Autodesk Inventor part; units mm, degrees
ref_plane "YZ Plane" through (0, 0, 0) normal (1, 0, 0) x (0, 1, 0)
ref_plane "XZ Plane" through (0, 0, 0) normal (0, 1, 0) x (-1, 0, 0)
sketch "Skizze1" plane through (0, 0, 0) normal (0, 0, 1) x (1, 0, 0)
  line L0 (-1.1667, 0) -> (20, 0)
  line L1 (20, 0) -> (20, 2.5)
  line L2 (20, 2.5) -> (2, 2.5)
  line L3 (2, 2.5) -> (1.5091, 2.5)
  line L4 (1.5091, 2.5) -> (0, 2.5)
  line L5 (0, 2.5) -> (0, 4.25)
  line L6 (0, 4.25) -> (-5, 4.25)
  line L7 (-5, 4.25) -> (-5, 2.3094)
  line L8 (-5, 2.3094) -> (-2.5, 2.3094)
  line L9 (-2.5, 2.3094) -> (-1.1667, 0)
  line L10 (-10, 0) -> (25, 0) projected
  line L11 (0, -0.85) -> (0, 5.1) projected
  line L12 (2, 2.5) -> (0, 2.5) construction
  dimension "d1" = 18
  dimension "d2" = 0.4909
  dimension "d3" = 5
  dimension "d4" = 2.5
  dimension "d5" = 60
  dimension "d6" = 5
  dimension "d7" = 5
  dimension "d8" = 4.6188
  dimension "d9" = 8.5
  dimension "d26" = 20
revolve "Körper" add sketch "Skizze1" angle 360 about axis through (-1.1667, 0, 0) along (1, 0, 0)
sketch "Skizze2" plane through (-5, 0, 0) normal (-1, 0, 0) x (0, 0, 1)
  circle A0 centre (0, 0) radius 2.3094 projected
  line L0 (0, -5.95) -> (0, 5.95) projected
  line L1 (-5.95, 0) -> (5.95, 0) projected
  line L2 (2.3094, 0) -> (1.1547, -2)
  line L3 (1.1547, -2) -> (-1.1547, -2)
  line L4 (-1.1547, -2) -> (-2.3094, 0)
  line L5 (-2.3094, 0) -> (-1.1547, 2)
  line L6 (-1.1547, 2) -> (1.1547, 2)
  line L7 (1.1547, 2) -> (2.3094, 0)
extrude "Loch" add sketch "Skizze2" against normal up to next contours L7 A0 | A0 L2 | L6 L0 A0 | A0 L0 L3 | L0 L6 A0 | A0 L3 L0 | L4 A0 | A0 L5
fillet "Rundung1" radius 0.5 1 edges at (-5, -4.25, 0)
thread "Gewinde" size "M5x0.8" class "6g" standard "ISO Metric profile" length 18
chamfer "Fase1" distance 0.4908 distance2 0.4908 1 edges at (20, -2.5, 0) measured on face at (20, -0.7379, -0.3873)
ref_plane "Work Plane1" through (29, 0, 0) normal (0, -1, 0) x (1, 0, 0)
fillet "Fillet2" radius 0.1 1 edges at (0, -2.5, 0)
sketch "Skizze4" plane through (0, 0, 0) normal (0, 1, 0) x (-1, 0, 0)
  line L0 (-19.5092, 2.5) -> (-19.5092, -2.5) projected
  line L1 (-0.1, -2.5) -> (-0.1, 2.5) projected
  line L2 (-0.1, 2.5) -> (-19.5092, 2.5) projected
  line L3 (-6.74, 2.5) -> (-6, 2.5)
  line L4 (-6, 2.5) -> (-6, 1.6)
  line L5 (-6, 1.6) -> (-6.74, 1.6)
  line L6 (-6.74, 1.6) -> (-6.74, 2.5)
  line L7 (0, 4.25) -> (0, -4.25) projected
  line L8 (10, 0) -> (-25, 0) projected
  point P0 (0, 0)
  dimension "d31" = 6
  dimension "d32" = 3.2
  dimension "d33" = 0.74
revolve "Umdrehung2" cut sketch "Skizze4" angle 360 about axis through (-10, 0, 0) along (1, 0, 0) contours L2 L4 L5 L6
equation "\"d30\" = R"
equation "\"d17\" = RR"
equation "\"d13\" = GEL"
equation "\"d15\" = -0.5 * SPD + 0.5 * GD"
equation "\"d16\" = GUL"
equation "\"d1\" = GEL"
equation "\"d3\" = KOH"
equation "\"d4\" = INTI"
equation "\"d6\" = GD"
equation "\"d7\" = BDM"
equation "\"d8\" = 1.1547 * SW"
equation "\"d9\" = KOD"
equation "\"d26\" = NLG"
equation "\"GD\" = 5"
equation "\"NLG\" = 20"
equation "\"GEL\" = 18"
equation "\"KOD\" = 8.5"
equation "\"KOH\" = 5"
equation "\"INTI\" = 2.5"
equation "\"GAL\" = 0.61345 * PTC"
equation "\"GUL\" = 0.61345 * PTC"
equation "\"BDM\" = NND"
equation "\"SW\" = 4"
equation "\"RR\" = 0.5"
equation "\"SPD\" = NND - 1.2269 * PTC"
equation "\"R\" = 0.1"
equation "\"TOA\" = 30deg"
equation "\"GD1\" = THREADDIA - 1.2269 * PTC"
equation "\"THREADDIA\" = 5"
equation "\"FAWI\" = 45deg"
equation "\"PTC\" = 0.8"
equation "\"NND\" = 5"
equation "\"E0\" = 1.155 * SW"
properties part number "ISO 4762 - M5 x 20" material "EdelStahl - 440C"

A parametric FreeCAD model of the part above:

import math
import FreeCAD as App
import Part
import Sketcher
from FreeCAD import Vector
Q = App.Units.Quantity


def edges_at(feature, points):
    """Names of the edges that pass closest to the given points."""
    edges = feature.Shape.Edges
    near = lambda p: min(range(len(edges)), key=lambda i: edges[i].distToShape(Part.Vertex(*p))[0])
    return sorted({f"Edge{near(p) + 1}" for p in points})

doc = App.newDocument("Part")
params = doc.addObject("Spreadsheet::Sheet", "Params")
for row, (alias, value) in enumerate([
    ("sketch1_width", "20 mm"),
    ("sketch1_width2", "5 mm"),
    ("sketch1_width3", "2.5 mm"),
    ("sketch1_height", "1.75 mm"),
    ("revolution_angle", "360 deg"),
    ("pad1_length", "2.6786 mm"),
    ("fillet_radius", "0.5 mm"),
    ("chamfer_size", "0.4908 mm"),
    ("chamfer_size2", "0.4908 mm"),
    ("fillet2_radius", "0.1 mm"),
    ("sketch3_width", "0.74 mm"),
    ("sketch3_height", "0.9 mm"),
    ("groove_angle", "360 deg"),
], start=1):
    params.set(f"A{row}", alias)
    params.set(f"B{row}", "=" + value)
    params.setAlias(f"B{row}", alias)

body = doc.addObject("PartDesign::Body", "Body")

# Sketch on XY plane
sketch1 = body.newObject("Sketcher::SketchObject", "Sketch")
sketch1.AttachmentSupport = (doc.getObject("XY_Plane"), [""])
sketch1.MapMode = "FlatFace"
sketch1.addGeometry(Part.LineSegment(Vector(-2.5, 2.3094, 0), Vector(-1.1667, 0, 0)), False)
sketch1.addGeometry(Part.LineSegment(Vector(-1.1667, 0, 0), Vector(20, 0, 0)), False)
sketch1.addGeometry(Part.LineSegment(Vector(20, 0, 0), Vector(20, 2.5, 0)), False)
sketch1.addGeometry(Part.LineSegment(Vector(20, 2.5, 0), Vector(0, 2.5, 0)), False)
sketch1.addGeometry(Part.LineSegment(Vector(0, 2.5, 0), Vector(0, 4.25, 0)), False)
sketch1.addGeometry(Part.LineSegment(Vector(0, 4.25, 0), Vector(-5, 4.25, 0)), False)
sketch1.addGeometry(Part.LineSegment(Vector(-5, 4.25, 0), Vector(-5, 2.3094, 0)), False)
sketch1.addGeometry(Part.LineSegment(Vector(-5, 2.3094, 0), Vector(-2.5, 2.3094, 0)), False)
sketch1.addConstraint(Sketcher.Constraint("Coincident", 0, 2, 1, 1))
sketch1.addConstraint(Sketcher.Constraint("Coincident", 1, 2, 2, 1))
sketch1.addConstraint(Sketcher.Constraint("Coincident", 2, 2, 3, 1))
sketch1.addConstraint(Sketcher.Constraint("Coincident", 3, 2, 4, 1))
sketch1.addConstraint(Sketcher.Constraint("Coincident", 4, 2, 5, 1))
sketch1.addConstraint(Sketcher.Constraint("Coincident", 5, 2, 6, 1))
sketch1.addConstraint(Sketcher.Constraint("Coincident", 6, 2, 7, 1))
sketch1.addConstraint(Sketcher.Constraint("Coincident", 7, 2, 0, 1))
sketch1.addConstraint(Sketcher.Constraint("Horizontal", 1))
sketch1.addConstraint(Sketcher.Constraint("Vertical", 2))
sketch1.addConstraint(Sketcher.Constraint("Horizontal", 3))
sketch1.addConstraint(Sketcher.Constraint("Vertical", 4))
sketch1.addConstraint(Sketcher.Constraint("Horizontal", 5))
sketch1.addConstraint(Sketcher.Constraint("Vertical", 6))
sketch1.addConstraint(Sketcher.Constraint("Horizontal", 7))
sketch1.addConstraint(Sketcher.Constraint("PointOnObject", 0, 2, -1))
sketch1.addConstraint(Sketcher.Constraint("PointOnObject", 3, 2, -2))
sketch1.addConstraint(Sketcher.Constraint("Equal", 7, 2))
sketch1.addConstraint(Sketcher.Constraint("DistanceX", 3, 2, 3, 1, 20.0))
sketch1.addConstraint(Sketcher.Constraint("DistanceX", 5, 2, 5, 1, 5.0))
sketch1.addConstraint(Sketcher.Constraint("DistanceX", 7, 1, 7, 2, 2.5))
sketch1.addConstraint(Sketcher.Constraint("Angle", 0, Q("-60.0006 deg")))
sketch1.addConstraint(Sketcher.Constraint("DistanceY", 4, 1, 4, 2, 1.75))
sketch1.addConstraint(Sketcher.Constraint("DistanceX", 1, 1, 1, 2, 21.1667))
sketch1.setExpression("Constraints[18]", "Params.sketch1_width")
sketch1.setExpression("Constraints[19]", "Params.sketch1_width2")
sketch1.setExpression("Constraints[20]", "Params.sketch1_width3")
sketch1.setExpression("Constraints[22]", "Params.sketch1_height")
revolution = body.newObject("PartDesign::Revolution", "Revolution")
revolution.Profile = sketch1
revolution.ReferenceAxis = (sketch1, ["H_Axis"])
revolution.setExpression("Angle", "Params.revolution_angle")

# Sketch on YZ plane
sketch2 = body.newObject("Sketcher::SketchObject", "Sketch001")
sketch2.AttachmentSupport = (doc.getObject("YZ_Plane"), [""])
sketch2.MapMode = "FlatFace"
sketch2.AttachmentOffset = App.Placement(Vector(0, 0, -5), App.Rotation())
sketch2.addGeometry(Part.LineSegment(Vector(2, 1.1547, 0), Vector(0, 2.3094, 0)), False)
sketch2.addGeometry(Part.ArcOfCircle(Part.Circle(Vector(0, 0, 0), Vector(0, 0, 1), 2.3094), math.radians(29.999988), math.radians(90)), False)
sketch2.addGeometry(Part.ArcOfCircle(Part.Circle(Vector(0, 0, 0), Vector(0, 0, 1), 2.3094), math.radians(90), math.radians(150.000012)), False)
sketch2.addGeometry(Part.LineSegment(Vector(0, 2.3094, 0), Vector(-2, 1.1547, 0)), False)
sketch2.addGeometry(Part.ArcOfCircle(Part.Circle(Vector(0, 0, 0), Vector(0, 0, 1), 2.3094), math.radians(-29.999988), math.radians(29.999988)), False)
sketch2.addGeometry(Part.LineSegment(Vector(2, -1.1547, 0), Vector(2, 1.1547, 0)), False)
sketch2.addGeometry(Part.LineSegment(Vector(-2, 1.1547, 0), Vector(-2, -1.1547, 0)), False)
sketch2.addGeometry(Part.ArcOfCircle(Part.Circle(Vector(0, 0, 0), Vector(0, 0, 1), 2.3094), math.radians(150.000012), math.radians(209.999988)), False)
sketch2.addGeometry(Part.LineSegment(Vector(-2, -1.1547, 0), Vector(0, -2.3094, 0)), False)
sketch2.addGeometry(Part.ArcOfCircle(Part.Circle(Vector(0, 0, 0), Vector(0, 0, 1), 2.3094), math.radians(-150.000012), math.radians(-90)), False)
sketch2.addGeometry(Part.ArcOfCircle(Part.Circle(Vector(0, 0, 0), Vector(0, 0, 1), 2.3094), math.radians(-90), math.radians(-29.999988)), False)
sketch2.addGeometry(Part.LineSegment(Vector(0, -2.3094, 0), Vector(2, -1.1547, 0)), False)
sketch2.addConstraint(Sketcher.Constraint("Coincident", 0, 1, 1, 1))
sketch2.addConstraint(Sketcher.Constraint("Coincident", 1, 2, 0, 2))
sketch2.addConstraint(Sketcher.Constraint("Coincident", 2, 1, 3, 1))
sketch2.addConstraint(Sketcher.Constraint("Coincident", 3, 2, 2, 2))
sketch2.addConstraint(Sketcher.Constraint("Coincident", 4, 1, 5, 1))
sketch2.addConstraint(Sketcher.Constraint("Coincident", 5, 2, 4, 2))
sketch2.addConstraint(Sketcher.Constraint("Coincident", 6, 1, 7, 1))
sketch2.addConstraint(Sketcher.Constraint("Coincident", 7, 2, 6, 2))
sketch2.addConstraint(Sketcher.Constraint("Coincident", 8, 1, 9, 1))
sketch2.addConstraint(Sketcher.Constraint("Coincident", 9, 2, 8, 2))
sketch2.addConstraint(Sketcher.Constraint("Coincident", 10, 1, 11, 1))
sketch2.addConstraint(Sketcher.Constraint("Coincident", 11, 2, 10, 2))
sketch2.addConstraint(Sketcher.Constraint("Vertical", 5))
sketch2.addConstraint(Sketcher.Constraint("Vertical", 6))
sketch2.addConstraint(Sketcher.Constraint("Coincident", 1, 3, -1, 1))
sketch2.addConstraint(Sketcher.Constraint("Coincident", 2, 3, -1, 1))
sketch2.addConstraint(Sketcher.Constraint("Coincident", 4, 3, -1, 1))
sketch2.addConstraint(Sketcher.Constraint("Coincident", 7, 3, -1, 1))
sketch2.addConstraint(Sketcher.Constraint("Coincident", 9, 3, -1, 1))
sketch2.addConstraint(Sketcher.Constraint("Coincident", 10, 3, -1, 1))
sketch2.addConstraint(Sketcher.Constraint("Coincident", 2, 1, 1, 2))
sketch2.addConstraint(Sketcher.Constraint("Coincident", 5, 2, 0, 1))
sketch2.addConstraint(Sketcher.Constraint("Coincident", 6, 1, 3, 2))
sketch2.addConstraint(Sketcher.Constraint("Coincident", 8, 1, 7, 2))
sketch2.addConstraint(Sketcher.Constraint("Coincident", 10, 1, 9, 2))
sketch2.addConstraint(Sketcher.Constraint("PointOnObject", 1, 2, -2))
sketch2.addConstraint(Sketcher.Constraint("PointOnObject", 9, 2, -2))
sketch2.addConstraint(Sketcher.Constraint("Parallel", 0, 8))
sketch2.addConstraint(Sketcher.Constraint("Parallel", 3, 11))
sketch2.addConstraint(Sketcher.Constraint("Angle", 0, Q("150 deg")))
sketch2.addConstraint(Sketcher.Constraint("DistanceX", -1, 1, 0, 1, 2.0))
pad1 = body.newObject("PartDesign::Pad", "Pad")
pad1.Profile = sketch2
pad1.setExpression("Length", "Params.pad1_length")
doc.recompute()

fillet = body.newObject("PartDesign::Fillet", "Fillet")
fillet.Base = (pad1, edges_at(pad1, [(-5, -4.25, 0)]))
fillet.setExpression("Radius", "Params.fillet_radius")
doc.recompute()

chamfer = body.newObject("PartDesign::Chamfer", "Chamfer")
chamfer.Base = (fillet, edges_at(fillet, [(20, -2.5, 0)]))
chamfer.ChamferType = "Two distances"
chamfer.setExpression("Size", "Params.chamfer_size")
chamfer.setExpression("Size2", "Params.chamfer_size2")
doc.recompute()

fillet2 = body.newObject("PartDesign::Fillet", "Fillet001")
fillet2.Base = (chamfer, edges_at(chamfer, [(0, -2.5, 0)]))
fillet2.setExpression("Radius", "Params.fillet2_radius")

# Sketch on XZ plane
sketch3 = body.newObject("Sketcher::SketchObject", "Sketch002")
sketch3.AttachmentSupport = (doc.getObject("XZ_Plane"), [""])
sketch3.MapMode = "FlatFace"
sketch3.addGeometry(Part.LineSegment(Vector(6, 2.5, 0), Vector(6.74, 2.5, 0)), False)
sketch3.addGeometry(Part.LineSegment(Vector(6.74, 2.5, 0), Vector(6.74, 1.6, 0)), False)
sketch3.addGeometry(Part.LineSegment(Vector(6.74, 1.6, 0), Vector(6, 1.6, 0)), False)
sketch3.addGeometry(Part.LineSegment(Vector(6, 1.6, 0), Vector(6, 2.5, 0)), False)
sketch3.addConstraint(Sketcher.Constraint("Coincident", 0, 2, 1, 1))
sketch3.addConstraint(Sketcher.Constraint("Coincident", 1, 2, 2, 1))
sketch3.addConstraint(Sketcher.Constraint("Coincident", 2, 2, 3, 1))
sketch3.addConstraint(Sketcher.Constraint("Coincident", 3, 2, 0, 1))
sketch3.addConstraint(Sketcher.Constraint("Horizontal", 0))
sketch3.addConstraint(Sketcher.Constraint("Vertical", 1))
sketch3.addConstraint(Sketcher.Constraint("Horizontal", 2))
sketch3.addConstraint(Sketcher.Constraint("Vertical", 3))
sketch3.addConstraint(Sketcher.Constraint("DistanceX", -1, 1, 2, 2, 6.0))
sketch3.addConstraint(Sketcher.Constraint("DistanceX", 0, 1, 0, 2, 0.74))
sketch3.addConstraint(Sketcher.Constraint("DistanceY", 1, 2, 1, 1, 0.9))
sketch3.addConstraint(Sketcher.Constraint("DistanceY", -1, 1, 0, 2, 2.5))
sketch3.setExpression("Constraints[9]", "Params.sketch3_width")
sketch3.setExpression("Constraints[10]", "Params.sketch3_height")
groove = body.newObject("PartDesign::Groove", "Groove")
groove.Profile = sketch3
groove.ReferenceAxis = (sketch3, ["H_Axis"])
groove.setExpression("Angle", "Params.groove_angle")

doc.recompute()
